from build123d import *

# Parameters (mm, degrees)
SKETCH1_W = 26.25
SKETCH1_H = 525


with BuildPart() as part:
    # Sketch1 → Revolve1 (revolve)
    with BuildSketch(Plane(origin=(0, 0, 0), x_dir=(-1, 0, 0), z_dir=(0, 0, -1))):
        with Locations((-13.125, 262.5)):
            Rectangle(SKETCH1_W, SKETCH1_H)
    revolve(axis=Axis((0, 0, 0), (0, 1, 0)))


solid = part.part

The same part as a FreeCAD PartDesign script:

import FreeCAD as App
import Part
import Sketcher

V = App.Vector
Q = App.Units.Quantity

doc = App.newDocument("Part")
body = doc.addObject("PartDesign::Body", "Body")

# Sketch on XY plane
sketch1 = doc.addObject("Sketcher::SketchObject", "Sketch")
body.addObject(sketch1)
sketch1.AttachmentSupport = (doc.XY_Plane, [""])
sketch1.MapMode = "FlatFace"
sketch1.addGeometry(Part.LineSegment(V(26, 525, 0), V(26, 0, 0)), False)
sketch1.addGeometry(Part.LineSegment(V(26, 0, 0), V(0, 0, 0)), False)
sketch1.addGeometry(Part.LineSegment(V(0, 0, 0), V(0, 525, 0)), False)
sketch1.addGeometry(Part.LineSegment(V(0, 525, 0), V(26, 525, 0)), False)
sketch1.addConstraint(Sketcher.Constraint("Coincident", 0, 2, 1, 1))
sketch1.addConstraint(Sketcher.Constraint("Coincident", 1, 2, 2, 1))
sketch1.addConstraint(Sketcher.Constraint("Coincident", 2, 2, 3, 1))
sketch1.addConstraint(Sketcher.Constraint("Coincident", 3, 2, 0, 1))
sketch1.addConstraint(Sketcher.Constraint("Vertical", 0))
sketch1.addConstraint(Sketcher.Constraint("Horizontal", 1))
sketch1.addConstraint(Sketcher.Constraint("Vertical", 2))
sketch1.addConstraint(Sketcher.Constraint("Horizontal", 3))
sketch1.addConstraint(Sketcher.Constraint("Coincident", 1, 2, -1, 1))
sketch1.addConstraint(Sketcher.Constraint("DistanceY", 0, 2, 0, 1, Q("525 mm")))
sketch1.addConstraint(Sketcher.Constraint("DistanceX", 1, 2, 1, 1, Q("26.25 mm")))
revolution = doc.addObject("PartDesign::Revolution", "Revolution")
body.addObject(revolution)
revolution.Profile = sketch1
revolution.ReferenceAxis = (sketch1, ["V_Axis"])
revolution.Angle = 360

doc.recompute()
